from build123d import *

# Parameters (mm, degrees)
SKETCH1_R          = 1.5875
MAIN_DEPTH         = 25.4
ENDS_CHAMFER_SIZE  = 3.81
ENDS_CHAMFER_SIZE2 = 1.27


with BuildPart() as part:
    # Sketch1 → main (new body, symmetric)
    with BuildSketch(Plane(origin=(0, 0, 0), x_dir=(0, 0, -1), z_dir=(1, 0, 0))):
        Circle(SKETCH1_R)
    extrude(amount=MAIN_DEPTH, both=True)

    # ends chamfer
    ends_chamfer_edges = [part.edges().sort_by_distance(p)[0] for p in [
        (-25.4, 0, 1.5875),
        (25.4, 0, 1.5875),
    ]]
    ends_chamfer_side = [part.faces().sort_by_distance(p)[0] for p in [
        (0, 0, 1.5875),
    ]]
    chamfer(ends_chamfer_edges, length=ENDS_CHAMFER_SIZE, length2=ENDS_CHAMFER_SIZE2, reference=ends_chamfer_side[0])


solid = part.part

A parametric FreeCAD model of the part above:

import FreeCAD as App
import Part
import Sketcher
from FreeCAD import Vector
Q = App.Units.Quantity


def edges_at(feature, points):
    """Names of the edges that pass closest to the given points."""
    edges = feature.Shape.Edges
    near = lambda p: min(range(len(edges)), key=lambda i: edges[i].distToShape(Part.Vertex(*p))[0])
    return sorted({f"Edge{near(p) + 1}" for p in points})

doc = App.newDocument("Part")
body = doc.addObject("PartDesign::Body", "Body")

# Sketch on YZ plane
sketch1 = doc.addObject("Sketcher::SketchObject", "Sketch")
body.addObject(sketch1)
sketch1.AttachmentSupport = (doc.YZ_Plane, [""])
sketch1.MapMode = "FlatFace"
sketch1.addGeometry(Part.Circle(Vector(0, 0, 0), Vector(0, 0, 1), 1.6), False)
sketch1.addConstraint(Sketcher.Constraint("Coincident", 0, 3, -1, 1))
sketch1.addConstraint(Sketcher.Constraint("Diameter", 0, Q("0.125 in")))
pad1 = doc.addObject("PartDesign::Pad", "Pad")
body.addObject(pad1)
pad1.Profile = sketch1
pad1.Length = Q("2 in")
pad1.Midplane = True
doc.recompute()

chamfer = doc.addObject("PartDesign::Chamfer", "Chamfer")
body.addObject(chamfer)
chamfer.Base = (pad1, edges_at(pad1, [(-25.4, 0, 1.587), (25.4, 0, 1.587)]))
chamfer.ChamferType = "Two distances"
chamfer.Size = Q("0.15 in")
chamfer.Size2 = Q("0.05 in")

doc.recompute()
